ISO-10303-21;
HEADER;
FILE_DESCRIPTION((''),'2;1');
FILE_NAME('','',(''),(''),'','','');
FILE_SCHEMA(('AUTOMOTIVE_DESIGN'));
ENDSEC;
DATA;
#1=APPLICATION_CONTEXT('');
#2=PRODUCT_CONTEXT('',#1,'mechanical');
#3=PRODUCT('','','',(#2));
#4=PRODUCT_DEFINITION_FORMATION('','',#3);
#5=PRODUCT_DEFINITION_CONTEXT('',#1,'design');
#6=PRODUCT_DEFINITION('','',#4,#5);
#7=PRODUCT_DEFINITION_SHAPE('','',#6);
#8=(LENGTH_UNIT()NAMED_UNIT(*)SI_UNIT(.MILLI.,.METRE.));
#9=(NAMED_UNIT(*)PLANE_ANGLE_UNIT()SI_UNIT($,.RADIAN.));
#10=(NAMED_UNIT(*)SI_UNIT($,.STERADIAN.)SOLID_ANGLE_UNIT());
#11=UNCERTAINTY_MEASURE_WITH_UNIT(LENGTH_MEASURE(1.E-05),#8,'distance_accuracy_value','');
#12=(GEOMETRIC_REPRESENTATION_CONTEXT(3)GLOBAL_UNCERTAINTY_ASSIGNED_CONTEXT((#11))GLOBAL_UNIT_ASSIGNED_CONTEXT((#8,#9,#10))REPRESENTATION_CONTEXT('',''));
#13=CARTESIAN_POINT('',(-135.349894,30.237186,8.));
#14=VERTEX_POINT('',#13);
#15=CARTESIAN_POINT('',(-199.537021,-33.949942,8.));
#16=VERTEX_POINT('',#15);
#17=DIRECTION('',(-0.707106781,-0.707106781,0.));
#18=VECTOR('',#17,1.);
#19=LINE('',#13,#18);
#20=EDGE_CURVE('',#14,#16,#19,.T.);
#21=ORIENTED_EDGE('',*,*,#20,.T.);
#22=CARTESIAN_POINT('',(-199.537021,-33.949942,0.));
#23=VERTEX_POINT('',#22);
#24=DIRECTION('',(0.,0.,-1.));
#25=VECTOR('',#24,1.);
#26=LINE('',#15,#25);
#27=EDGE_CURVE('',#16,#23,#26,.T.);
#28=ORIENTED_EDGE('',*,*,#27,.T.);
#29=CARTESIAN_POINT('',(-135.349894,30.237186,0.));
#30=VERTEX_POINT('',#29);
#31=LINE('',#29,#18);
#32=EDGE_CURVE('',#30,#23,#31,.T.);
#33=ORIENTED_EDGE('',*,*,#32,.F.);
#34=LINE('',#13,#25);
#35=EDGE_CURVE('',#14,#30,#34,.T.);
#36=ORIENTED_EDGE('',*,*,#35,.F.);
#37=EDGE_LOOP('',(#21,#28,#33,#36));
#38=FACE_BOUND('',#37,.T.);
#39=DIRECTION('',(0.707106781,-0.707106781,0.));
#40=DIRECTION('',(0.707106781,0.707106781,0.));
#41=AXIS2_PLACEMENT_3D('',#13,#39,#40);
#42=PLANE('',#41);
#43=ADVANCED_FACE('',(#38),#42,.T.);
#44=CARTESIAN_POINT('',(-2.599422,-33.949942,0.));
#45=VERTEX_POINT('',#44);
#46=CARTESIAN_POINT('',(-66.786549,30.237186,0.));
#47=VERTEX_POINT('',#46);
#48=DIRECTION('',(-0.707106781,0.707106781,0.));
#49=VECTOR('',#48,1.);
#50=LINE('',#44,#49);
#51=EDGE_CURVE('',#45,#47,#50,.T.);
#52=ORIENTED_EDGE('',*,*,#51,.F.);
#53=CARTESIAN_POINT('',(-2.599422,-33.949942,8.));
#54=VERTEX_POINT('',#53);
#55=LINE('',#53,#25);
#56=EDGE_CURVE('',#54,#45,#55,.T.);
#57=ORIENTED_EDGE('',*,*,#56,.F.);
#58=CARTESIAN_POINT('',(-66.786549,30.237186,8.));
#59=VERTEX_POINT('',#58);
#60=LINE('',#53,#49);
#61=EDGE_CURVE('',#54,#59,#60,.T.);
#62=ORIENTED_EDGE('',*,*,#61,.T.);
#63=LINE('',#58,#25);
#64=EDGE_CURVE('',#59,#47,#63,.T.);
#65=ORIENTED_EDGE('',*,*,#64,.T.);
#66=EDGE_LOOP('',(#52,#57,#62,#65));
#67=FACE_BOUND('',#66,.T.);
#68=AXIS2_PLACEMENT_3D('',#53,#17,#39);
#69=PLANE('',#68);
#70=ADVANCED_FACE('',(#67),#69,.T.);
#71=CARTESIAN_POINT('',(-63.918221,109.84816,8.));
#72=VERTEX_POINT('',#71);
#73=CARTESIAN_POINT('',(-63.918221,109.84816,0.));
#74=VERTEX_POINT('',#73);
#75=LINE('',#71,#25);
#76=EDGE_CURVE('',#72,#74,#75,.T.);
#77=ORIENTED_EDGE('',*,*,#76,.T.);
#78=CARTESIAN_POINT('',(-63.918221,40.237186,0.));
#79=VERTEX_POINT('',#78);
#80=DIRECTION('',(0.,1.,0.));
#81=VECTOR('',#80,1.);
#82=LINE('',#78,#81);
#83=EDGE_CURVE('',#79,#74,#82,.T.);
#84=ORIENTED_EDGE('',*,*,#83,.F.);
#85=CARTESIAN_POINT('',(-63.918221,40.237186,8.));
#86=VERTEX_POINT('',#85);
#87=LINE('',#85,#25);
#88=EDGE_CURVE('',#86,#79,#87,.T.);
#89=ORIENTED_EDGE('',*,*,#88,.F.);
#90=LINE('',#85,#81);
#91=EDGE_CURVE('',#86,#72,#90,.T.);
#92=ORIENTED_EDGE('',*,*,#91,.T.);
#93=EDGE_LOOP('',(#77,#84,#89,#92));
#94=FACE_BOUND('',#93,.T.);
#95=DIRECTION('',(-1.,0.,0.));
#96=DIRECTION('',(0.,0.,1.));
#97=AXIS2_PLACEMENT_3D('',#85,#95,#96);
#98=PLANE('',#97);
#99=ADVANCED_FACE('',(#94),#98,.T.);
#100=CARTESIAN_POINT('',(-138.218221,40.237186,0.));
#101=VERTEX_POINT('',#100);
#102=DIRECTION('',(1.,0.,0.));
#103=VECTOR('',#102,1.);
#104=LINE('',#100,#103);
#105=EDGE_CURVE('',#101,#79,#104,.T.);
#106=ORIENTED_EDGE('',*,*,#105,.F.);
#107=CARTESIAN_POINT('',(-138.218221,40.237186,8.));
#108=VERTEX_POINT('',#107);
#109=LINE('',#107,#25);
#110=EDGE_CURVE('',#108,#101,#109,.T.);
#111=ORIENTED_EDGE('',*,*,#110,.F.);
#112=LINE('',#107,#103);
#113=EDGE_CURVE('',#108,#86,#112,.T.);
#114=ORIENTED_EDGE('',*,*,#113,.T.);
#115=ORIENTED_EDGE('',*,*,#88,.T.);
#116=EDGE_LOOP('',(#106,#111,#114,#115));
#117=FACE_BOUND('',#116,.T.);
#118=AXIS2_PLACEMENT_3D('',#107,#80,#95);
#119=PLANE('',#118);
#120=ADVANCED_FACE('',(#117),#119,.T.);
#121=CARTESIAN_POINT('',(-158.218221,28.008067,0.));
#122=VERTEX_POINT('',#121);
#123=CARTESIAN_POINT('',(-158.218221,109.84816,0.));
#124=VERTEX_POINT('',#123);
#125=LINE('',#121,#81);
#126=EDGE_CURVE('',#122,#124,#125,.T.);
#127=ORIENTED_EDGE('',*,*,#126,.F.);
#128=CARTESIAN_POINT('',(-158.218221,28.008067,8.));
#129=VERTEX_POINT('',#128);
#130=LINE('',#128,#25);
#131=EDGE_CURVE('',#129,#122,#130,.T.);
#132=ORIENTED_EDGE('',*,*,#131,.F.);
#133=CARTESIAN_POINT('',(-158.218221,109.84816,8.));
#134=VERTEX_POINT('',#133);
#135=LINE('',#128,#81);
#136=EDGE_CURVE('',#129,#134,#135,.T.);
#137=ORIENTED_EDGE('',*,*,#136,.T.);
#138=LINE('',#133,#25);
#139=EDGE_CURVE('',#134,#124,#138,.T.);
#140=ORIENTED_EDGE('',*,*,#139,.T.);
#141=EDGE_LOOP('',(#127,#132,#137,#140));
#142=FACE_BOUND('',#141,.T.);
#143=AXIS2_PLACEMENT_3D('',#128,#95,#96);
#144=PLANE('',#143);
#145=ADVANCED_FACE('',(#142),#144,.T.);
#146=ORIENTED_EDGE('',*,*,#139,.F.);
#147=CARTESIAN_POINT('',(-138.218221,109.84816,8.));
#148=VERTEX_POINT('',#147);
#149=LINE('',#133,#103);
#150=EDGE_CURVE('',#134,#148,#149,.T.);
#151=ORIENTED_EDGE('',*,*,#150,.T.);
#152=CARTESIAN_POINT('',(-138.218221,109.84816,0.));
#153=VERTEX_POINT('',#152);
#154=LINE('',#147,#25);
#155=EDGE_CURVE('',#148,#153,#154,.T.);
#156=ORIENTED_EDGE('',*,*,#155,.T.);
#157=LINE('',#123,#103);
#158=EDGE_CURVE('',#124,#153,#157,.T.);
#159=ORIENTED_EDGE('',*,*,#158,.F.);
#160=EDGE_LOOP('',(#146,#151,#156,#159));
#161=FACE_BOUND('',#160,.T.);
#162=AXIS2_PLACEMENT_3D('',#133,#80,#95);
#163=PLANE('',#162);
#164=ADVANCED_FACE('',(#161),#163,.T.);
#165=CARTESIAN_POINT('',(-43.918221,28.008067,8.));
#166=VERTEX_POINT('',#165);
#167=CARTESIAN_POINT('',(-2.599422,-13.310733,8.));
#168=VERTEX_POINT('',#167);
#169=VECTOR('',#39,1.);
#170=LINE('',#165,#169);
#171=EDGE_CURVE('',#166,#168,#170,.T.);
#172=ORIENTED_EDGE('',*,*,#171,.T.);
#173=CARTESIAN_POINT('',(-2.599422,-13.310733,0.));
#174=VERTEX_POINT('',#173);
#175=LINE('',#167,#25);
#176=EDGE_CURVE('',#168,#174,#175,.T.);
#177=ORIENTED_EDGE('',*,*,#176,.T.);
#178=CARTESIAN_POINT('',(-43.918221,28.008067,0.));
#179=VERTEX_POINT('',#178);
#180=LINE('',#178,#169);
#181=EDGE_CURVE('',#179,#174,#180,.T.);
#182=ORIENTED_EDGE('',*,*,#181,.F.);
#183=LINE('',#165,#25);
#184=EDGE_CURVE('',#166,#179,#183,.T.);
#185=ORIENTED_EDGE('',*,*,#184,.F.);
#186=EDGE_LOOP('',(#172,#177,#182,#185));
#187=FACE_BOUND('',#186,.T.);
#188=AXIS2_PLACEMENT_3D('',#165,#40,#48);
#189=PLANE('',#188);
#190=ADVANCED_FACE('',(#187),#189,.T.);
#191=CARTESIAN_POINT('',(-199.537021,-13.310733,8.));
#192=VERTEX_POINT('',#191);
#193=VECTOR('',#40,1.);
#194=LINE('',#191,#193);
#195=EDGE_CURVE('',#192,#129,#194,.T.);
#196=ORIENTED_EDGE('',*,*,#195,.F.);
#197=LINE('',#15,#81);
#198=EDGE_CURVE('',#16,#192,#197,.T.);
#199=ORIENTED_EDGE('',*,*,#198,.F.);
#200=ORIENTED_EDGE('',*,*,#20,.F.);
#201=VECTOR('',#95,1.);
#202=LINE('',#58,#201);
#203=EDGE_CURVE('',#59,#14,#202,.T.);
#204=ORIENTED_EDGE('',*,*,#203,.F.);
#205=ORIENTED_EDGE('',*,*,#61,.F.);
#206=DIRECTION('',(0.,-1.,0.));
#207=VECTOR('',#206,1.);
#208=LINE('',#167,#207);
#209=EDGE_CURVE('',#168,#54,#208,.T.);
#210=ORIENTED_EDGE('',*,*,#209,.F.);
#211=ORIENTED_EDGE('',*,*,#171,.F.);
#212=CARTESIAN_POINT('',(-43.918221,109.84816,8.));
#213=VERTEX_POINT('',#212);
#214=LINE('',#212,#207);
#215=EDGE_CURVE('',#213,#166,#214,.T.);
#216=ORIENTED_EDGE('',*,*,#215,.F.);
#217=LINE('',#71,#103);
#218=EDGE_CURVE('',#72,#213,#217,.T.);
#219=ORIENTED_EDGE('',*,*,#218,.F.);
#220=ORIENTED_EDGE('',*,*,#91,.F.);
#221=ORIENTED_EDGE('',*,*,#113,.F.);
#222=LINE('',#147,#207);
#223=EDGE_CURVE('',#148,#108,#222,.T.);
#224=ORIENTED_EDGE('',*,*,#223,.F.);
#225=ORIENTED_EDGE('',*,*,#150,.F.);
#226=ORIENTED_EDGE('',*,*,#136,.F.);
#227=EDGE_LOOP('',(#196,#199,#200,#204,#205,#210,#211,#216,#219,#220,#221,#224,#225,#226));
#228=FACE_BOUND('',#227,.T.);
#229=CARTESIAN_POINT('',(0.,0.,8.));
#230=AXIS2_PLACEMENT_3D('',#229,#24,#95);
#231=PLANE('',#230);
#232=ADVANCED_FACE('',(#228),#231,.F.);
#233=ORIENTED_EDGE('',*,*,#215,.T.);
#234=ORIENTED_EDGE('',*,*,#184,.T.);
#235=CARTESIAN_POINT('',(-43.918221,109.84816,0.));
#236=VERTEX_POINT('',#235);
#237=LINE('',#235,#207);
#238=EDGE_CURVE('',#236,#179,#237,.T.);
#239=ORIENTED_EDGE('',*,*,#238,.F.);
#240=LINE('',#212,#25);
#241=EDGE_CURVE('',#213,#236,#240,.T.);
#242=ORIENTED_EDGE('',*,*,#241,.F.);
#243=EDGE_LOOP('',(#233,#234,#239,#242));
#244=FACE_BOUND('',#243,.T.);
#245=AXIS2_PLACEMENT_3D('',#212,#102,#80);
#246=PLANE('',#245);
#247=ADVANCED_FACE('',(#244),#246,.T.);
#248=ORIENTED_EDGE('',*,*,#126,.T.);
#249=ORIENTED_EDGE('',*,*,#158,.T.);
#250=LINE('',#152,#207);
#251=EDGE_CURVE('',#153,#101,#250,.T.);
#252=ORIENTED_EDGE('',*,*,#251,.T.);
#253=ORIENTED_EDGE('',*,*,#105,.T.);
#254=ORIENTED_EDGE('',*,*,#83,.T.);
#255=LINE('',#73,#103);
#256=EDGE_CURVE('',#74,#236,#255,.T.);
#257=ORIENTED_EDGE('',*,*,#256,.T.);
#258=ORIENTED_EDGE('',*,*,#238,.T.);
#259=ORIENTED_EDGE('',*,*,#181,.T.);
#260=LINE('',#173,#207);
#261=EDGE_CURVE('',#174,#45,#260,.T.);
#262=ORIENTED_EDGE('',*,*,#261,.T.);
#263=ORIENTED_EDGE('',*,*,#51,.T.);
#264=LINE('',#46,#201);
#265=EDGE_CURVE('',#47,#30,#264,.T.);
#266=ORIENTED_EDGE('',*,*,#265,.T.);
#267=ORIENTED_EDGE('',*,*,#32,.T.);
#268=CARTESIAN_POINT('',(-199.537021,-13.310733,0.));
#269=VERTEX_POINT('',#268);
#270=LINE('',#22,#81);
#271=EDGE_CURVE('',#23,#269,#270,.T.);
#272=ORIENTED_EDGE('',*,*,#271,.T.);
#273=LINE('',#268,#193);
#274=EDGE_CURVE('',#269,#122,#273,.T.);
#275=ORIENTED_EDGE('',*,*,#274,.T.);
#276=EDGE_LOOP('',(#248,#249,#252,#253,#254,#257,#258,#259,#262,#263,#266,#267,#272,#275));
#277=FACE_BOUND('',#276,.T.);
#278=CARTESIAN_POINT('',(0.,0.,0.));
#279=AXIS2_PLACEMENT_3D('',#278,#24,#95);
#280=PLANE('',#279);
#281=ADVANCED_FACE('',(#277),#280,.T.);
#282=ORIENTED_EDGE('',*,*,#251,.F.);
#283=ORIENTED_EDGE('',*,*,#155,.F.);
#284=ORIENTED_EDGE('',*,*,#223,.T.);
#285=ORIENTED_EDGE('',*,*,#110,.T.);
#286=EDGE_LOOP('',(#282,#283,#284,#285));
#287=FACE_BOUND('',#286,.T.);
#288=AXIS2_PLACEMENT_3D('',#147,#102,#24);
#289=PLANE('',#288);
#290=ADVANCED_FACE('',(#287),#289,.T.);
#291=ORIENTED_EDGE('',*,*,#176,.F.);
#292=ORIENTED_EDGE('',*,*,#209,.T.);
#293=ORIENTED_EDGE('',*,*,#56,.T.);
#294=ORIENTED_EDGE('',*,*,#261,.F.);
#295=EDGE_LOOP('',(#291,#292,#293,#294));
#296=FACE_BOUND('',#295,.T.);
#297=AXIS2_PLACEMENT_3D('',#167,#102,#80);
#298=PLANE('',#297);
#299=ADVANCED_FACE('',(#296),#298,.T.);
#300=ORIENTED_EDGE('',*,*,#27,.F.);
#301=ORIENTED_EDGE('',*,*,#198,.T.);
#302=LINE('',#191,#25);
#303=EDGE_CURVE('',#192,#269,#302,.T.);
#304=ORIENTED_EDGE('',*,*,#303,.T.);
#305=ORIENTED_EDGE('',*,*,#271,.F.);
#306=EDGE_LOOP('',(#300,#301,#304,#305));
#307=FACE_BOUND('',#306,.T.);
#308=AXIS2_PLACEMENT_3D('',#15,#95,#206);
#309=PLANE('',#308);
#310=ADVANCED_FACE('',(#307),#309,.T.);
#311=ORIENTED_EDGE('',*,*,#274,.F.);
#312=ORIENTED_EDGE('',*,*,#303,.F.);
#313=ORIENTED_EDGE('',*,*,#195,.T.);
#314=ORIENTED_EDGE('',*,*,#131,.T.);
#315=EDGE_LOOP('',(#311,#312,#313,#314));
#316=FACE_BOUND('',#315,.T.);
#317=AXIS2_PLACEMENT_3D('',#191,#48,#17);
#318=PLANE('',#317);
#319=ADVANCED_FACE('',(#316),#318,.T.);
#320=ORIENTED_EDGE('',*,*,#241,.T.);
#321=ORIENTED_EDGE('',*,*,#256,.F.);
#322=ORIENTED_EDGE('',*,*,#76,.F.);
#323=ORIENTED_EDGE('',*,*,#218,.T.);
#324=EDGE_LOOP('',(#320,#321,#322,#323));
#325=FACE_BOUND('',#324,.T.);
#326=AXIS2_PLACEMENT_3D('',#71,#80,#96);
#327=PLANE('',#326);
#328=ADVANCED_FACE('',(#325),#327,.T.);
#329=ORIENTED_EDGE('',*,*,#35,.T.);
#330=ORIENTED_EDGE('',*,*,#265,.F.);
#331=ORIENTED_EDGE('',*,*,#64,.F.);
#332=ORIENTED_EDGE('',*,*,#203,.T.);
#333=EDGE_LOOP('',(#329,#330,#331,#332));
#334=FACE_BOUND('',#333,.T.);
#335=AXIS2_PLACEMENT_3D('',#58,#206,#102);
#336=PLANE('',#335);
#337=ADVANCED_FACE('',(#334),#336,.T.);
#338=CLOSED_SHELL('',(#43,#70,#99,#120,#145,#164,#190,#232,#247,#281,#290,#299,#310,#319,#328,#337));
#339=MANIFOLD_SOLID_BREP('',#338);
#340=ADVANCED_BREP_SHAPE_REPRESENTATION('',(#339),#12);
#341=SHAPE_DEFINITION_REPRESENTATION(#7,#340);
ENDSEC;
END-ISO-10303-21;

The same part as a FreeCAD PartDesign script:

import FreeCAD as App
import Part
import Sketcher

V = App.Vector
Q = App.Units.Quantity


def add_polygon(sketch, points):
    """Adds a closed chain of lines whose ends are joined by coincident constraints."""
    first, n = sketch.GeometryCount, len(points)
    for a, b in zip(points, points[1:] + points[:1]):
        sketch.addGeometry(Part.LineSegment(App.Vector(*a, 0), App.Vector(*b, 0)), False)
    for i in range(n):
        sketch.addConstraint(Sketcher.Constraint("Coincident", first + i, 2, first + (i + 1) % n, 1))

doc = App.newDocument("Part")
body = doc.addObject("PartDesign::Body", "Body")

sketch1 = body.newObject("Sketcher::SketchObject", "Sketch")
sketch1.AttachmentSupport = (doc.getObject("XY_Plane"), [""])
sketch1.MapMode = "FlatFace"
add_polygon(sketch1, [(-44, 28), (-3, -13), (-3, -34), (-67, 30), (-135, 30), (-200, -34), (-200, -13), (-158, 28), (-158, 110), (-138, 110), (-138, 40), (-64, 40), (-64, 110), (-44, 110)])
sketch1.addConstraint([
    Sketcher.Constraint("Vertical", 1),
    Sketcher.Constraint("Horizontal", 3),
    Sketcher.Constraint("Vertical", 5),
    Sketcher.Constraint("Vertical", 7),
    Sketcher.Constraint("Horizontal", 8),
    Sketcher.Constraint("Vertical", 9),
    Sketcher.Constraint("Horizontal", 10),
    Sketcher.Constraint("Vertical", 11),
    Sketcher.Constraint("Horizontal", 12),
    Sketcher.Constraint("Vertical", 13),
    Sketcher.Constraint("Parallel", 0, 2),
    Sketcher.Constraint("Perpendicular", 2, 4),
    Sketcher.Constraint("Parallel", 4, 6),
    Sketcher.Constraint("Horizontal", 1, 2, 4, 2),
    Sketcher.Constraint("Horizontal", 0, 2, 5, 2),
    Sketcher.Constraint("Horizontal", 8, 2, 11, 2),
    Sketcher.Constraint("Horizontal", 6, 2, 13, 2),
    Sketcher.Constraint("Equal", 8, 12),
    Sketcher.Constraint("Equal", 2, 4),
    Sketcher.Constraint("DistanceX", 8, 1, 8, 2, Q("20 mm")),
    Sketcher.Constraint("DistanceX", 10, 1, 10, 2, Q("74.3 mm")),
    Sketcher.Constraint("DistanceY", 3, 2, 9, 2, Q("10 mm")),
    Sketcher.Constraint("DistanceY", 1, 2, 1, 1, Q("20.639208 mm")),
    Sketcher.Constraint("DistanceX", 4, 2, 1, 2, Q("196.9376 mm")),
    Sketcher.Constraint("DistanceY", 4, 2, 7, 2, Q("143.798101 mm")),
    Sketcher.Constraint("DistanceX", 3, 2, 3, 1, Q("68.563345 mm")),
    Sketcher.Constraint("DistanceX", 0, 2, -1, 1, Q("2.599422 mm")),
    Sketcher.Constraint("DistanceY", 1, 2, -1, 1, Q("33.949942 mm")),
])
pad1 = body.newObject("PartDesign::Pad", "Pad")
pad1.Profile = sketch1
pad1.Length = 8

doc.recompute()
